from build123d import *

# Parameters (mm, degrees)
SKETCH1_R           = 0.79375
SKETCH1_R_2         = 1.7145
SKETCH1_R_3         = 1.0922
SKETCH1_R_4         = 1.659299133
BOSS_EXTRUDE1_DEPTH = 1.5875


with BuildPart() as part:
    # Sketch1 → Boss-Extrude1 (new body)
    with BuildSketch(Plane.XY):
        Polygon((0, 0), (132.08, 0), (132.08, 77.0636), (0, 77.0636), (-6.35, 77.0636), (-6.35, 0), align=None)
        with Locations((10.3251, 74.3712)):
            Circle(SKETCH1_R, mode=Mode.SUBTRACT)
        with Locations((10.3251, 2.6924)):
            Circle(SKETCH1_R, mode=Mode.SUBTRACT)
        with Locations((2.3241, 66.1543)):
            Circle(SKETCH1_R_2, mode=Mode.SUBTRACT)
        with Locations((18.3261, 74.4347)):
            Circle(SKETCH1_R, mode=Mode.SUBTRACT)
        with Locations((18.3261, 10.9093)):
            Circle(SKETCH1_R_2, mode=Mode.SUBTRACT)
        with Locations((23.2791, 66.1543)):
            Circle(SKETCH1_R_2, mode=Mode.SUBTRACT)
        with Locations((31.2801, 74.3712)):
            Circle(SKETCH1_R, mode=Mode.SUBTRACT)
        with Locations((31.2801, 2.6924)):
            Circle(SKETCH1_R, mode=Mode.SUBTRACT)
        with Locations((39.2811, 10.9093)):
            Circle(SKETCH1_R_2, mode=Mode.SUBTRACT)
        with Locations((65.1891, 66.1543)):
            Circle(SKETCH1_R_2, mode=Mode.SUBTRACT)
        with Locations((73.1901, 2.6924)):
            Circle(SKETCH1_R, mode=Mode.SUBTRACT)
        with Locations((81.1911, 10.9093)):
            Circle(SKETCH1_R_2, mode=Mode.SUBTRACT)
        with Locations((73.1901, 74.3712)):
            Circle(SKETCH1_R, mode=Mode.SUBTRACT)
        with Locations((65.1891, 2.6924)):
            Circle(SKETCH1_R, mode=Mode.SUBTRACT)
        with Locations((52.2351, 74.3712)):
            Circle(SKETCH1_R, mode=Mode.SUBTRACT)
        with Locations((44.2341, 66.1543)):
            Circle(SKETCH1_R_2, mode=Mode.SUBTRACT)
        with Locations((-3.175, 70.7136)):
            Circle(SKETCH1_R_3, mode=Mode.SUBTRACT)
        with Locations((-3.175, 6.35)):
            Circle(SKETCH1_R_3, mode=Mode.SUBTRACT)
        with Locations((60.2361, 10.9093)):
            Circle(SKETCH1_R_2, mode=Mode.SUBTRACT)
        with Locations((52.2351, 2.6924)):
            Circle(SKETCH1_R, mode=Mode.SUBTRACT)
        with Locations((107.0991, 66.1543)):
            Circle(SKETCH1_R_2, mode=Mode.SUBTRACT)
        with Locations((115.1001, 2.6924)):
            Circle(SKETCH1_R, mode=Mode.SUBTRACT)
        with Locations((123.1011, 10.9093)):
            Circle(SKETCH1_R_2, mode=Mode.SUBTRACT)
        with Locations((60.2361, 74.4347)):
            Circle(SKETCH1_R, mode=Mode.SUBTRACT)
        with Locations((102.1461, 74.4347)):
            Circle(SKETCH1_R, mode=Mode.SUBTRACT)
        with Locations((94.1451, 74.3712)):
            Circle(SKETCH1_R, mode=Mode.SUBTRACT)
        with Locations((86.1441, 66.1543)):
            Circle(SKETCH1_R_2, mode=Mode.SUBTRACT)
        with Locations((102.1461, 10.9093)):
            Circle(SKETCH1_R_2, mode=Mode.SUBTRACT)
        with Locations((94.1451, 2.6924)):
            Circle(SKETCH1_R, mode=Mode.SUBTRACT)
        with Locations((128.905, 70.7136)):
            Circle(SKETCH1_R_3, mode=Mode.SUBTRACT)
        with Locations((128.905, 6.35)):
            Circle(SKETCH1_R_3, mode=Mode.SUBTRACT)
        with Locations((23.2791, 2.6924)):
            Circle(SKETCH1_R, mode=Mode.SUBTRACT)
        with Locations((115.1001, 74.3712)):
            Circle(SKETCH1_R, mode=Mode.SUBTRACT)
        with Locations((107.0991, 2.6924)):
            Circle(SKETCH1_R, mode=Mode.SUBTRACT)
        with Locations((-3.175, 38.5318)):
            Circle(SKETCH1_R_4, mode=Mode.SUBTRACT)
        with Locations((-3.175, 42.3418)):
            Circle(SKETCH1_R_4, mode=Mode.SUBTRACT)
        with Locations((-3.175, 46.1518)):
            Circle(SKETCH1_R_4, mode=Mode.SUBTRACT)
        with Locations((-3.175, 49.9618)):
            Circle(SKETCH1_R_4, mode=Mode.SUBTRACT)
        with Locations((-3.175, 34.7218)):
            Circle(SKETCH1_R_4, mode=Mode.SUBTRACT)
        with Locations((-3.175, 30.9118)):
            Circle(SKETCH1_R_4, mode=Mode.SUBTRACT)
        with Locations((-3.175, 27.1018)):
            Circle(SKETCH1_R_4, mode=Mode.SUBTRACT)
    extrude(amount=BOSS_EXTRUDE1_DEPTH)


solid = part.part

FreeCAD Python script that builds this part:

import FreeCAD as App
import Part
import Sketcher

V = App.Vector
Q = App.Units.Quantity

doc = App.newDocument("Part")
params = doc.addObject("Spreadsheet::Sheet", "Params")
for row, (alias, value) in enumerate([
    ("sketch1_diameter", "0.086 in"),
    ("sketch1_diameter2", "0.0625 in"),
    ("sketch1_diameter3", "0.135 in"),
    ("sketch1_width", "5.45 in"),
    ("sketch1_height", "3.034 in"),
    ("pad1_length", "0.0625 in"),
], start=1):
    params.set(f"A{row}", alias)
    params.set(f"B{row}", "=" + value)
    params.setAlias(f"B{row}", alias)

body = doc.addObject("PartDesign::Body", "Body")

# Sketch on XY plane
sketch1 = doc.addObject("Sketcher::SketchObject", "Sketch")
body.addObject(sketch1)
sketch1.AttachmentSupport = (doc.XY_Plane, [""])
sketch1.MapMode = "FlatFace"
sketch1.addGeometry(Part.LineSegment(V(132.1, 0, 0), V(132.1, 77.1, 0)), False)
sketch1.addGeometry(Part.LineSegment(V(132.1, 77.1, 0), V(-6.3, 77.1, 0)), False)
sketch1.addGeometry(Part.LineSegment(V(-6.3, 77.1, 0), V(-6.3, 0, 0)), False)
sketch1.addGeometry(Part.LineSegment(V(-6.3, 0, 0), V(132.1, 0, 0)), False)
sketch1.addGeometry(Part.Circle(V(-3.2, 6.3, 0), V(0, 0, 1), 1.1), False)
sketch1.addGeometry(Part.Circle(V(10.3, 2.7, 0), V(0, 0, 1), 0.8), False)
sketch1.addGeometry(Part.Circle(V(23.3, 2.7, 0), V(0, 0, 1), 0.8), False)
sketch1.addGeometry(Part.Circle(V(18.3, 10.9, 0), V(0, 0, 1), 1.7), False)
sketch1.addGeometry(Part.Circle(V(31.3, 2.7, 0), V(0, 0, 1), 0.8), False)
sketch1.addGeometry(Part.Circle(V(39.3, 10.9, 0), V(0, 0, 1), 1.7), False)
sketch1.addGeometry(Part.Circle(V(52.2, 2.7, 0), V(0, 0, 1), 0.8), False)
sketch1.addGeometry(Part.Circle(V(60.2, 10.9, 0), V(0, 0, 1), 1.7), False)
sketch1.addGeometry(Part.Circle(V(-3.2, 27.1, 0), V(0, 0, 1), 1.7), False)
sketch1.addGeometry(Part.Circle(V(-3.2, 30.9, 0), V(0, 0, 1), 1.7), False)
sketch1.addGeometry(Part.Circle(V(-3.2, 34.7, 0), V(0, 0, 1), 1.7), False)
sketch1.addGeometry(Part.Circle(V(-3.2, 38.5, 0), V(0, 0, 1), 1.7), False)
sketch1.addGeometry(Part.Circle(V(65.2, 2.7, 0), V(0, 0, 1), 0.8), False)
sketch1.addGeometry(Part.Circle(V(73.2, 2.7, 0), V(0, 0, 1), 0.8), False)
sketch1.addGeometry(Part.Circle(V(94.1, 2.7, 0), V(0, 0, 1), 0.8), False)
sketch1.addGeometry(Part.Circle(V(81.2, 10.9, 0), V(0, 0, 1), 1.7), False)
sketch1.addGeometry(Part.Circle(V(107.1, 2.7, 0), V(0, 0, 1), 0.8), False)
sketch1.addGeometry(Part.Circle(V(102.1, 10.9, 0), V(0, 0, 1), 1.7), False)
sketch1.addGeometry(Part.Circle(V(115.1, 2.7, 0), V(0, 0, 1), 0.8), False)
sketch1.addGeometry(Part.Circle(V(128.9, 6.3, 0), V(0, 0, 1), 1.1), False)
sketch1.addGeometry(Part.Circle(V(123.1, 10.9, 0), V(0, 0, 1), 1.7), False)
sketch1.addGeometry(Part.Circle(V(-3.2, 42.3, 0), V(0, 0, 1), 1.7), False)
sketch1.addGeometry(Part.Circle(V(-3.2, 46.2, 0), V(0, 0, 1), 1.7), False)
sketch1.addGeometry(Part.Circle(V(-3.2, 50, 0), V(0, 0, 1), 1.7), False)
sketch1.addGeometry(Part.Circle(V(2.3, 66.2, 0), V(0, 0, 1), 1.7), False)
sketch1.addGeometry(Part.Circle(V(-3.2, 70.7, 0), V(0, 0, 1), 1.1), False)
sketch1.addGeometry(Part.Circle(V(10.3, 74.4, 0), V(0, 0, 1), 0.8), False)
sketch1.addGeometry(Part.Circle(V(23.3, 66.2, 0), V(0, 0, 1), 1.7), False)
sketch1.addGeometry(Part.Circle(V(18.3, 74.4, 0), V(0, 0, 1), 0.8), False)
sketch1.addGeometry(Part.Circle(V(44.2, 66.2, 0), V(0, 0, 1), 1.7), False)
sketch1.addGeometry(Part.Circle(V(31.3, 74.4, 0), V(0, 0, 1), 0.8), False)
sketch1.addGeometry(Part.Circle(V(52.2, 74.4, 0), V(0, 0, 1), 0.8), False)
sketch1.addGeometry(Part.Circle(V(60.2, 74.4, 0), V(0, 0, 1), 0.8), False)
sketch1.addGeometry(Part.Circle(V(65.2, 66.2, 0), V(0, 0, 1), 1.7), False)
sketch1.addGeometry(Part.Circle(V(73.2, 74.4, 0), V(0, 0, 1), 0.8), False)
sketch1.addGeometry(Part.Circle(V(86.1, 66.2, 0), V(0, 0, 1), 1.7), False)
sketch1.addGeometry(Part.Circle(V(94.1, 74.4, 0), V(0, 0, 1), 0.8), False)
sketch1.addGeometry(Part.Circle(V(107.1, 66.2, 0), V(0, 0, 1), 1.7), False)
sketch1.addGeometry(Part.Circle(V(102.1, 74.4, 0), V(0, 0, 1), 0.8), False)
sketch1.addGeometry(Part.Circle(V(115.1, 74.4, 0), V(0, 0, 1), 0.8), False)
sketch1.addGeometry(Part.Circle(V(128.9, 70.7, 0), V(0, 0, 1), 1.1), False)
sketch1.addConstraint(Sketcher.Constraint("Coincident", 0, 2, 1, 1))
sketch1.addConstraint(Sketcher.Constraint("Coincident", 1, 2, 2, 1))
sketch1.addConstraint(Sketcher.Constraint("Coincident", 2, 2, 3, 1))
sketch1.addConstraint(Sketcher.Constraint("Coincident", 3, 2, 0, 1))
sketch1.addConstraint(Sketcher.Constraint("Vertical", 0))
sketch1.addConstraint(Sketcher.Constraint("Horizontal", 1))
sketch1.addConstraint(Sketcher.Constraint("Vertical", 2))
sketch1.addConstraint(Sketcher.Constraint("Horizontal", 3))
sketch1.addConstraint(Sketcher.Constraint("Equal", 5, 6))
sketch1.addConstraint(Sketcher.Constraint("Equal", 6, 8))
sketch1.addConstraint(Sketcher.Constraint("Equal", 7, 9))
sketch1.addConstraint(Sketcher.Constraint("Equal", 8, 10))
sketch1.addConstraint(Sketcher.Constraint("Equal", 9, 11))
sketch1.addConstraint(Sketcher.Constraint("Equal", 12, 13))
sketch1.addConstraint(Sketcher.Constraint("Equal", 13, 14))
sketch1.addConstraint(Sketcher.Constraint("Equal", 14, 15))
sketch1.addConstraint(Sketcher.Constraint("Equal", 10, 16))
sketch1.addConstraint(Sketcher.Constraint("Equal", 16, 17))
sketch1.addConstraint(Sketcher.Constraint("Equal", 17, 18))
sketch1.addConstraint(Sketcher.Constraint("Equal", 11, 19))
sketch1.addConstraint(Sketcher.Constraint("Equal", 18, 20))
sketch1.addConstraint(Sketcher.Constraint("Equal", 19, 21))
sketch1.addConstraint(Sketcher.Constraint("Equal", 20, 22))
sketch1.addConstraint(Sketcher.Constraint("Equal", 4, 23))
sketch1.addConstraint(Sketcher.Constraint("Equal", 21, 24))
sketch1.addConstraint(Sketcher.Constraint("Equal", 15, 25))
sketch1.addConstraint(Sketcher.Constraint("Equal", 25, 26))
sketch1.addConstraint(Sketcher.Constraint("Equal", 26, 27))
sketch1.addConstraint(Sketcher.Constraint("Equal", 24, 28))
sketch1.addConstraint(Sketcher.Constraint("Equal", 23, 29))
sketch1.addConstraint(Sketcher.Constraint("Equal", 22, 30))
sketch1.addConstraint(Sketcher.Constraint("Equal", 28, 31))
sketch1.addConstraint(Sketcher.Constraint("Equal", 30, 32))
sketch1.addConstraint(Sketcher.Constraint("Equal", 31, 33))
sketch1.addConstraint(Sketcher.Constraint("Equal", 32, 34))
sketch1.addConstraint(Sketcher.Constraint("Equal", 34, 35))
sketch1.addConstraint(Sketcher.Constraint("Equal", 35, 36))
sketch1.addConstraint(Sketcher.Constraint("Equal", 33, 37))
sketch1.addConstraint(Sketcher.Constraint("Equal", 36, 38))
sketch1.addConstraint(Sketcher.Constraint("Equal", 37, 39))
sketch1.addConstraint(Sketcher.Constraint("Equal", 38, 40))
sketch1.addConstraint(Sketcher.Constraint("Equal", 39, 41))
sketch1.addConstraint(Sketcher.Constraint("Equal", 40, 42))
sketch1.addConstraint(Sketcher.Constraint("Equal", 42, 43))
sketch1.addConstraint(Sketcher.Constraint("Equal", 29, 44))
sketch1.addConstraint(Sketcher.Constraint("PointOnObject", 2, 2, -1))
sketch1.addConstraint(Sketcher.Constraint("Horizontal", 5, 3, 6, 3))
sketch1.addConstraint(Sketcher.Constraint("Horizontal", 6, 3, 8, 3))
sketch1.addConstraint(Sketcher.Constraint("Horizontal", 7, 3, 9, 3))
sketch1.addConstraint(Sketcher.Constraint("Horizontal", 8, 3, 10, 3))
sketch1.addConstraint(Sketcher.Constraint("Horizontal", 9, 3, 11, 3))
sketch1.addConstraint(Sketcher.Constraint("Horizontal", 10, 3, 16, 3))
sketch1.addConstraint(Sketcher.Constraint("Horizontal", 16, 3, 17, 3))
sketch1.addConstraint(Sketcher.Constraint("Horizontal", 17, 3, 18, 3))
sketch1.addConstraint(Sketcher.Constraint("Horizontal", 11, 3, 19, 3))
sketch1.addConstraint(Sketcher.Constraint("Horizontal", 18, 3, 20, 3))
sketch1.addConstraint(Sketcher.Constraint("Horizontal", 19, 3, 21, 3))
sketch1.addConstraint(Sketcher.Constraint("Horizontal", 20, 3, 22, 3))
sketch1.addConstraint(Sketcher.Constraint("Horizontal", 4, 3, 23, 3))
sketch1.addConstraint(Sketcher.Constraint("Horizontal", 21, 3, 24, 3))
sketch1.addConstraint(Sketcher.Constraint("Horizontal", 28, 3, 31, 3))
sketch1.addConstraint(Sketcher.Constraint("Horizontal", 31, 3, 33, 3))
sketch1.addConstraint(Sketcher.Constraint("Horizontal", 30, 3, 34, 3))
sketch1.addConstraint(Sketcher.Constraint("Horizontal", 34, 3, 35, 3))
sketch1.addConstraint(Sketcher.Constraint("Horizontal", 32, 3, 36, 3))
sketch1.addConstraint(Sketcher.Constraint("Horizontal", 33, 3, 37, 3))
sketch1.addConstraint(Sketcher.Constraint("Horizontal", 35, 3, 38, 3))
sketch1.addConstraint(Sketcher.Constraint("Horizontal", 37, 3, 39, 3))
sketch1.addConstraint(Sketcher.Constraint("Horizontal", 38, 3, 40, 3))
sketch1.addConstraint(Sketcher.Constraint("Horizontal", 39, 3, 41, 3))
sketch1.addConstraint(Sketcher.Constraint("Horizontal", 36, 3, 42, 3))
sketch1.addConstraint(Sketcher.Constraint("Horizontal", 40, 3, 43, 3))
sketch1.addConstraint(Sketcher.Constraint("Horizontal", 29, 3, 44, 3))
sketch1.addConstraint(Sketcher.Constraint("Vertical", 4, 3, 12, 3))
sketch1.addConstraint(Sketcher.Constraint("Vertical", 12, 3, 13, 3))
sketch1.addConstraint(Sketcher.Constraint("Vertical", 13, 3, 14, 3))
sketch1.addConstraint(Sketcher.Constraint("Vertical", 14, 3, 15, 3))
sketch1.addConstraint(Sketcher.Constraint("Vertical", 15, 3, 25, 3))
sketch1.addConstraint(Sketcher.Constraint("Vertical", 25, 3, 26, 3))
sketch1.addConstraint(Sketcher.Constraint("Vertical", 26, 3, 27, 3))
sketch1.addConstraint(Sketcher.Constraint("Vertical", 27, 3, 29, 3))
sketch1.addConstraint(Sketcher.Constraint("Vertical", 5, 3, 30, 3))
sketch1.addConstraint(Sketcher.Constraint("Vertical", 6, 3, 31, 3))
sketch1.addConstraint(Sketcher.Constraint("Vertical", 7, 3, 32, 3))
sketch1.addConstraint(Sketcher.Constraint("Vertical", 8, 3, 34, 3))
sketch1.addConstraint(Sketcher.Constraint("Vertical", 10, 3, 35, 3))
sketch1.addConstraint(Sketcher.Constraint("Vertical", 11, 3, 36, 3))
sketch1.addConstraint(Sketcher.Constraint("Vertical", 16, 3, 37, 3))
sketch1.addConstraint(Sketcher.Constraint("Vertical", 17, 3, 38, 3))
sketch1.addConstraint(Sketcher.Constraint("Vertical", 18, 3, 40, 3))
sketch1.addConstraint(Sketcher.Constraint("Vertical", 20, 3, 41, 3))
sketch1.addConstraint(Sketcher.Constraint("Vertical", 21, 3, 42, 3))
sketch1.addConstraint(Sketcher.Constraint("Vertical", 22, 3, 43, 3))
sketch1.addConstraint(Sketcher.Constraint("Vertical", 23, 3, 44, 3))
sketch1.addConstraint(Sketcher.Constraint("Diameter", 4, Q("0.086 in")))
sketch1.addConstraint(Sketcher.Constraint("Diameter", 5, Q("0.0625 in")))
sketch1.addConstraint(Sketcher.Constraint("Diameter", 7, Q("0.135 in")))
sketch1.addConstraint(Sketcher.Constraint("DistanceX", 1, 2, 1, 1, Q("5.45 in")))
sketch1.addConstraint(Sketcher.Constraint("DistanceX", -1, 1, 0, 2, Q("5.2 in")))
sketch1.addConstraint(Sketcher.Constraint("DistanceY", 12, 3, 14, 3, Q("0.3 in")))
sketch1.addConstraint(Sketcher.Constraint("DistanceY", 13, 3, 15, 3, Q("0.3 in")))
sketch1.addConstraint(Sketcher.Constraint("DistanceY", 14, 3, 25, 3, Q("0.3 in")))
sketch1.addConstraint(Sketcher.Constraint("DistanceY", 15, 3, 26, 3, Q("0.3 in")))
sketch1.addConstraint(Sketcher.Constraint("DistanceY", 25, 3, 27, 3, Q("0.3 in")))
sketch1.addConstraint(Sketcher.Constraint("Diameter", 12, Q("3.318598 mm")))
sketch1.addConstraint(Sketcher.Constraint("DistanceY", 0, 1, 0, 2, Q("3.034 in")))
sketch1.addConstraint(Sketcher.Constraint("DistanceY", -1, 1, 4, 3, Q("0.25 in")))
sketch1.addConstraint(Sketcher.Constraint("DistanceX", 5, 3, 6, 3, Q("0.51 in")))
sketch1.addConstraint(Sketcher.Constraint("DistanceX", 7, 3, 8, 3, Q("0.51 in")))
sketch1.addConstraint(Sketcher.Constraint("DistanceX", 6, 3, 9, 3, Q("0.63 in")))
sketch1.addConstraint(Sketcher.Constraint("DistanceX", 9, 3, 10, 3, Q("0.51 in")))
sketch1.addConstraint(Sketcher.Constraint("DistanceX", 8, 3, 11, 3, Q("1.14 in")))
sketch1.addConstraint(Sketcher.Constraint("DistanceY", 12, 3, 13, 3, Q("0.15 in")))
sketch1.addConstraint(Sketcher.Constraint("DistanceX", 10, 3, 16, 3, Q("0.51 in")))
sketch1.addConstraint(Sketcher.Constraint("DistanceX", 11, 3, 17, 3, Q("0.51 in")))
sketch1.addConstraint(Sketcher.Constraint("DistanceX", 16, 3, 18, 3, Q("1.14 in")))
sketch1.addConstraint(Sketcher.Constraint("DistanceX", 19, 3, 18, 3, Q("0.51 in")))
sketch1.addConstraint(Sketcher.Constraint("DistanceX", 18, 3, 20, 3, Q("0.51 in")))
sketch1.addConstraint(Sketcher.Constraint("DistanceX", 17, 3, 21, 3, Q("1.14 in")))
sketch1.addConstraint(Sketcher.Constraint("DistanceX", 21, 3, 22, 3, Q("0.51 in")))
sketch1.addConstraint(Sketcher.Constraint("DistanceX", 20, 3, 24, 3, Q("0.63 in")))
sketch1.addConstraint(Sketcher.Constraint("DistanceX", 28, 3, 32, 3, Q("0.63 in")))
sketch1.addConstraint(Sketcher.Constraint("DistanceX", 32, 3, 33, 3, Q("1.02 in")))
sketch1.addConstraint(Sketcher.Constraint("DistanceX", 38, 3, 39, 3, Q("0.51 in")))
sketch1.addConstraint(Sketcher.Constraint("DistanceY", 44, 3, 0, 2, Q("0.25 in")))
sketch1.addConstraint(Sketcher.Constraint("DistanceX", 4, 3, -1, 1, Q("0.125 in")))
sketch1.addConstraint(Sketcher.Constraint("DistanceY", -1, 1, 5, 3, Q("0.106 in")))
sketch1.addConstraint(Sketcher.Constraint("DistanceY", -1, 1, 12, 3, Q("1.067 in")))
sketch1.addConstraint(Sketcher.Constraint("DistanceX", -1, 1, 23, 3, Q("5.075 in")))
sketch1.addConstraint(Sketcher.Constraint("DistanceY", -1, 1, 30, 3, Q("2.928 in")))
sketch1.addConstraint(Sketcher.Constraint("DistanceX", 7, 3, 6, 3, Q("0.195 in")))
sketch1.addConstraint(Sketcher.Constraint("DistanceY", 7, 3, 14, 3, Q("0.9375 in")))
sketch1.addConstraint(Sketcher.Constraint("DistanceY", 25, 3, 28, 3, Q("0.9375 in")))
sketch1.addConstraint(Sketcher.Constraint("DistanceY", 31, 3, 32, 3, Q("0.326 in")))
sketch1.addConstraint(Sketcher.Constraint("DistanceX", -1, 1, 5, 3, Q("0.4065 in")))
sketch1.setExpression("Constraints[94]", "Params.sketch1_diameter")
sketch1.setExpression("Constraints[95]", "Params.sketch1_diameter2")
sketch1.setExpression("Constraints[96]", "Params.sketch1_diameter3")
sketch1.setExpression("Constraints[97]", "Params.sketch1_width")
sketch1.setExpression("Constraints[105]", "Params.sketch1_height")
pad1 = doc.addObject("PartDesign::Pad", "Pad")
body.addObject(pad1)
pad1.Profile = sketch1
pad1.setExpression("Length", "Params.pad1_length")

doc.recompute()
